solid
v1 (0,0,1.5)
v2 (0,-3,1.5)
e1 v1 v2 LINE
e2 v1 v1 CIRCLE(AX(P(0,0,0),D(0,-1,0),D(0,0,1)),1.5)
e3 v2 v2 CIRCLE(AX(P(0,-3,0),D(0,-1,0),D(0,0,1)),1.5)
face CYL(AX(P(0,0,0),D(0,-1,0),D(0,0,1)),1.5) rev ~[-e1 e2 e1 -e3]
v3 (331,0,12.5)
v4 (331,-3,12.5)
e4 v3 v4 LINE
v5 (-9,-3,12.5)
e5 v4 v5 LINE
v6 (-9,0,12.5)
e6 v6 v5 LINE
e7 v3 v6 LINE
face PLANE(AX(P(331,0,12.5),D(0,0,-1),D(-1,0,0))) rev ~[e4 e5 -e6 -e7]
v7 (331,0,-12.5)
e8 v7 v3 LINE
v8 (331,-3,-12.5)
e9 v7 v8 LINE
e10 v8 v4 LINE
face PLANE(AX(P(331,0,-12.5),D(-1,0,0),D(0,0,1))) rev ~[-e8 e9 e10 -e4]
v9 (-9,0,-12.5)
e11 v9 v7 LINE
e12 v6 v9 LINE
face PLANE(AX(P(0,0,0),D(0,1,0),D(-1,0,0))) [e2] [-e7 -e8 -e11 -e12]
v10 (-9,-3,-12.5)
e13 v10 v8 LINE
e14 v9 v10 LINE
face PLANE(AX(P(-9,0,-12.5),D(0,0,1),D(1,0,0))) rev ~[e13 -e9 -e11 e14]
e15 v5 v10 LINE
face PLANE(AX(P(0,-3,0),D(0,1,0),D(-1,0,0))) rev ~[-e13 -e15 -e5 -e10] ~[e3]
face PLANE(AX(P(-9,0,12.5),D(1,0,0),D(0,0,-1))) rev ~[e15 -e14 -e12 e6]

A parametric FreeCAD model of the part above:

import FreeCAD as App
import Part
import Sketcher
from FreeCAD import Vector

doc = App.newDocument("Part")
body = doc.addObject("PartDesign::Body", "Body")

sketch1 = body.newObject("Sketcher::SketchObject", "Sketch")
sketch1.AttachmentSupport = (doc.getObject("XZ_Plane"), [""])
sketch1.MapMode = "FlatFace"
sketch1.addGeometry(Part.LineSegment(Vector(-9, 12.5, 0), Vector(331, 12.5, 0)), False)
sketch1.addGeometry(Part.LineSegment(Vector(331, 12.5, 0), Vector(331, -12.5, 0)), False)
sketch1.addGeometry(Part.LineSegment(Vector(331, -12.5, 0), Vector(-9, -12.5, 0)), False)
sketch1.addGeometry(Part.LineSegment(Vector(-9, -12.5, 0), Vector(-9, 12.5, 0)), False)
sketch1.addConstraint(Sketcher.Constraint("Coincident", 0, 2, 1, 1))
sketch1.addConstraint(Sketcher.Constraint("Coincident", 1, 2, 2, 1))
sketch1.addConstraint(Sketcher.Constraint("Coincident", 2, 2, 3, 1))
sketch1.addConstraint(Sketcher.Constraint("Coincident", 3, 2, 0, 1))
sketch1.addConstraint(Sketcher.Constraint("Horizontal", 0))
sketch1.addConstraint(Sketcher.Constraint("Vertical", 1))
sketch1.addConstraint(Sketcher.Constraint("Horizontal", 2))
sketch1.addConstraint(Sketcher.Constraint("Vertical", 3))
sketch1.addConstraint(Sketcher.Constraint("DistanceX", 0, 1, 0, 2, 340.0))
sketch1.addConstraint(Sketcher.Constraint("DistanceY", 1, 2, 1, 1, 25.0))
sketch1.addConstraint(Sketcher.Constraint("DistanceX", 2, 2, -1, 1, 9.0))
sketch1.addConstraint(Sketcher.Constraint("DistanceY", -1, 1, 0, 2, 12.5))
pad1 = body.newObject("PartDesign::Pad", "Pad")
pad1.Profile = sketch1
pad1.Length = 3

sketch2 = body.newObject("Sketcher::SketchObject", "Sketch001")
sketch2.AttachmentSupport = (doc.getObject("XZ_Plane"), [""])
sketch2.MapMode = "FlatFace"
sketch2.addGeometry(Part.Circle(Vector(0, 0, 0), Vector(0, 0, 1), 1.5), False)
sketch2.addConstraint(Sketcher.Constraint("Coincident", 0, 3, -1, 1))
sketch2.addConstraint(Sketcher.Constraint("Diameter", 0, 3.0))
doc.recompute()
hole = body.newObject("PartDesign::Hole", "Hole")
hole.Profile = sketch2
hole.ThreadType = "None"
hole.Diameter = 3
hole.DepthType = "ThroughAll"
hole.Reversed = True

doc.recompute()
